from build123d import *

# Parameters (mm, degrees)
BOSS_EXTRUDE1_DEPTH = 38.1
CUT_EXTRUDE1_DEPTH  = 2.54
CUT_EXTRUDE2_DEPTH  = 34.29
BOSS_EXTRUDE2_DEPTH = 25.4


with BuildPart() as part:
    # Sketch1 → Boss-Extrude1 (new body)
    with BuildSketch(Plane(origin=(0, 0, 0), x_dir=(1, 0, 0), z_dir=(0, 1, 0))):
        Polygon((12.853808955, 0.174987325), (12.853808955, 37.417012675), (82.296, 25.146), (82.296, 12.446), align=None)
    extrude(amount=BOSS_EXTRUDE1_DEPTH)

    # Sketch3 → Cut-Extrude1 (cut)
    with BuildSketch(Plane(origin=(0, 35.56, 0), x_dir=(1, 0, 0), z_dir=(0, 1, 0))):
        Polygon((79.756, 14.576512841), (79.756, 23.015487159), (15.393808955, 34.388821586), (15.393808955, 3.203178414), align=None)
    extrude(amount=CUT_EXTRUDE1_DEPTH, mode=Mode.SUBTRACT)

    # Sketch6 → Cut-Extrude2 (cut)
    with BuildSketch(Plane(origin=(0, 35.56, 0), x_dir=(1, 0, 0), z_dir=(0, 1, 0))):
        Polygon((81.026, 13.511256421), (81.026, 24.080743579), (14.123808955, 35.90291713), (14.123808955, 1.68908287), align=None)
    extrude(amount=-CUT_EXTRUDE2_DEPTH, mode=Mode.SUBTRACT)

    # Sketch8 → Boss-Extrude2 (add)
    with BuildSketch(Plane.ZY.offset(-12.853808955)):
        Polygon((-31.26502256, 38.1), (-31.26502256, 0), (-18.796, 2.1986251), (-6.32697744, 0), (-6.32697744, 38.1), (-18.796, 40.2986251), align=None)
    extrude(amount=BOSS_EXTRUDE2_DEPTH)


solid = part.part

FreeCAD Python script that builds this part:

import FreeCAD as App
import Part
import Sketcher

V = App.Vector
Q = App.Units.Quantity

doc = App.newDocument("Part")
body = doc.addObject("PartDesign::Body", "Body")

# Sketch on XZ plane
sketch1 = body.newObject("Sketcher::SketchObject", "Sketch")
sketch1.AttachmentSupport = (doc.getObject("XZ_Plane"), [""])
sketch1.MapMode = "FlatFace"
sketch1.addGeometry([
    Part.LineSegment(V(13, -37, 0), V(13, 0, 0)),
    Part.LineSegment(V(13, 0, 0), V(82, -12, 0)),
    Part.LineSegment(V(82, -12, 0), V(82, -25, 0)),
    Part.LineSegment(V(82, -25, 0), V(13, -37, 0)),
], False)
sketch1.addConstraint([
    Sketcher.Constraint("Coincident", 0, 2, 1, 1),
    Sketcher.Constraint("Coincident", 1, 2, 2, 1),
    Sketcher.Constraint("Coincident", 2, 2, 3, 1),
    Sketcher.Constraint("Coincident", 3, 2, 0, 1),
    Sketcher.Constraint("Vertical", 0),
    Sketcher.Constraint("Vertical", 2),
    Sketcher.Constraint("Equal", 1, 3),
    Sketcher.Constraint("DistanceY", 2, 2, 2, 1, Q("0.5 in")),
    Sketcher.Constraint("DistanceX", -1, 1, 1, 2, Q("3.24 in")),
    Sketcher.Constraint("DistanceY", 1, 2, -1, 1, Q("0.49 in")),
    Sketcher.Constraint("Distance", 1, Q("70.518052 mm")),
    Sketcher.Constraint("DistanceY", 0, 1, 0, 2, Q("37.242025 mm")),
])
pad1 = body.newObject("PartDesign::Pad", "Pad")
pad1.Profile = sketch1
pad1.Length = Q("1.5 in")
pad1.Reversed = True

# Sketch on XZ plane
sketch2 = body.newObject("Sketcher::SketchObject", "Sketch001")
sketch2.AttachmentSupport = (doc.getObject("XZ_Plane"), [""])
sketch2.MapMode = "FlatFace"
sketch2.AttachmentOffset = App.Placement(V(0, 0, -1.4 * 25.4), App.Rotation())
sketch2.addGeometry([
    Part.LineSegment(V(80, -15, 0), V(80, -23, 0)),
    Part.LineSegment(V(80, -23, 0), V(15, -34, 0)),
    Part.LineSegment(V(15, -34, 0), V(15, -3, 0)),
    Part.LineSegment(V(15, -3, 0), V(80, -15, 0)),
], False)
sketch2.addConstraint([
    Sketcher.Constraint("Coincident", 0, 2, 1, 1),
    Sketcher.Constraint("Coincident", 1, 2, 2, 1),
    Sketcher.Constraint("Coincident", 2, 2, 3, 1),
    Sketcher.Constraint("Coincident", 3, 2, 0, 1),
    Sketcher.Constraint("Vertical", 0),
    Sketcher.Constraint("Vertical", 2),
    Sketcher.Constraint("Equal", 1, 3),
    Sketcher.Constraint("DistanceX", -1, 1, 0, 2, Q("3.14 in")),
    Sketcher.Constraint("Distance", 1, Q("65.359348 mm")),
    Sketcher.Constraint("DistanceY", 0, 2, 0, 1, Q("8.438974 mm")),
    Sketcher.Constraint("DistanceY", 2, 1, 2, 2, Q("31.185643 mm")),
    Sketcher.Constraint("DistanceY", 1, 2, -1, 1, Q("34.388822 mm")),
])
pocket1 = body.newObject("PartDesign::Pocket", "Pocket")
pocket1.Profile = sketch2
pocket1.Length = Q("0.1 in")

# Sketch on XZ plane
sketch3 = body.newObject("Sketcher::SketchObject", "Sketch002")
sketch3.AttachmentSupport = (doc.getObject("XZ_Plane"), [""])
sketch3.MapMode = "FlatFace"
sketch3.AttachmentOffset = App.Placement(V(0, 0, -1.4 * 25.4), App.Rotation())
sketch3.addGeometry([
    Part.LineSegment(V(81, -14, 0), V(81, -24, 0)),
    Part.LineSegment(V(81, -24, 0), V(14, -36, 0)),
    Part.LineSegment(V(14, -36, 0), V(14, -2, 0)),
    Part.LineSegment(V(14, -2, 0), V(81, -14, 0)),
], False)
sketch3.addConstraint([
    Sketcher.Constraint("Coincident", 0, 2, 1, 1),
    Sketcher.Constraint("Coincident", 1, 2, 2, 1),
    Sketcher.Constraint("Coincident", 2, 2, 3, 1),
    Sketcher.Constraint("Coincident", 3, 2, 0, 1),
    Sketcher.Constraint("Vertical", 0),
    Sketcher.Constraint("Vertical", 2),
    Sketcher.Constraint("Equal", 1, 3),
    Sketcher.Constraint("DistanceX", -1, 1, 0, 2, Q("3.19 in")),
    Sketcher.Constraint("Distance", 1, Q("67.9387 mm")),
    Sketcher.Constraint("DistanceY", 0, 2, 0, 1, Q("10.569487 mm")),
    Sketcher.Constraint("DistanceY", 2, 1, 2, 2, Q("34.213834 mm")),
    Sketcher.Constraint("DistanceY", 0, 2, -1, 1, Q("24.080744 mm")),
])
pocket2 = body.newObject("PartDesign::Pocket", "Pocket001")
pocket2.Profile = sketch3
pocket2.Length = Q("1.35 in")
pocket2.Reversed = True

# Sketch on YZ plane
sketch4 = body.newObject("Sketcher::SketchObject", "Sketch003")
sketch4.AttachmentSupport = (doc.getObject("YZ_Plane"), [""])
sketch4.MapMode = "FlatFace"
sketch4.AttachmentOffset = App.Placement(V(0, 0, 12.853809), App.Rotation())
sketch4.addGeometry([
    Part.LineSegment(V(38, -31, 0), V(0, -31, 0)),  # 0
    Part.LineSegment(V(0, -31, 0), V(2, -19, 0)),  # 1
    Part.LineSegment(V(2, -19, 0), V(0, -6, 0)),  # 2
    Part.LineSegment(V(0, -6, 0), V(38, -6, 0)),  # 3
    Part.LineSegment(V(38, -6, 0), V(40, -19, 0)),  # 4
    Part.LineSegment(V(40, -19, 0), V(38, -31, 0)),  # 5
], False)
sketch4.addConstraint([
    Sketcher.Constraint("Coincident", 0, 2, 1, 1),
    Sketcher.Constraint("Coincident", 1, 2, 2, 1),
    Sketcher.Constraint("Coincident", 2, 2, 3, 1),
    Sketcher.Constraint("Coincident", 3, 2, 4, 1),
    Sketcher.Constraint("Coincident", 4, 2, 5, 1),
    Sketcher.Constraint("Coincident", 5, 2, 0, 1),
    Sketcher.Constraint("Horizontal", 0),
    Sketcher.Constraint("Horizontal", 3),
    Sketcher.Constraint("PointOnObject", 0, 2, -2),
    Sketcher.Constraint("PointOnObject", 2, 2, -2),
    Sketcher.Constraint("Parallel", 2, 4),
    Sketcher.Constraint("Parallel", 1, 5),
    Sketcher.Constraint("Horizontal", 1, 2, 4, 2),
    Sketcher.Constraint("Equal", 1, 2),
    Sketcher.Constraint("DistanceX", 0, 2, 0, 1, Q("1.5 in")),
    Sketcher.Constraint("Angle", 1, Q("80 deg")),
    Sketcher.Constraint("DistanceY", 1, 2, -1, 1, Q("0.74 in")),
    Sketcher.Constraint("Distance", 1, Q("12.661377 mm")),
])
pad2 = body.newObject("PartDesign::Pad", "Pad001")
pad2.Profile = sketch4
pad2.Length = Q("1 in")
pad2.Reversed = True

doc.recompute()
